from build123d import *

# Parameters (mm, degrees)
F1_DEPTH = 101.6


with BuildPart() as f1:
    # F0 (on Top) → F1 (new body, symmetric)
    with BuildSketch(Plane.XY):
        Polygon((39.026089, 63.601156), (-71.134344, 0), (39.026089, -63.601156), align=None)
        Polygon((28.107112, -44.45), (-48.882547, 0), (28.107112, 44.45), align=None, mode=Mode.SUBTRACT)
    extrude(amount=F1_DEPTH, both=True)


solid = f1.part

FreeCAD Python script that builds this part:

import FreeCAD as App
import Part
import Sketcher
from FreeCAD import Vector
Q = App.Units.Quantity


def add_polygon(sketch, points):
    """Adds a closed chain of lines whose ends are joined by coincident constraints."""
    first, n = sketch.GeometryCount, len(points)
    for a, b in zip(points, points[1:] + points[:1]):
        sketch.addGeometry(Part.LineSegment(App.Vector(*a, 0), App.Vector(*b, 0)), False)
    for i in range(n):
        sketch.addConstraint(Sketcher.Constraint("Coincident", first + i, 2, first + (i + 1) % n, 1))

doc = App.newDocument("Part")
body = doc.addObject("PartDesign::Body", "Body")

# Sketch on XY plane
sketch1 = body.newObject("Sketcher::SketchObject", "Sketch")
sketch1.AttachmentSupport = (doc.getObject("XY_Plane"), [""])
sketch1.MapMode = "FlatFace"
add_polygon(sketch1, [(39.026089, 63.601156), (-71.134344, 0), (39.026089, -63.601156)])  # lines 0-2
add_polygon(sketch1, [(28.107112, 44.45), (28.107112, -44.45), (-48.882547, 0)])  # lines 3-5
sketch1.addConstraint([
    Sketcher.Constraint("Vertical", 2),
    Sketcher.Constraint("Vertical", 3),
    Sketcher.Constraint("PointOnObject", 0, 2, -1),
    Sketcher.Constraint("PointOnObject", 4, 2, -1),
    Sketcher.Constraint("Parallel", 1, 4),
    Sketcher.Constraint("Parallel", 0, 5),
    Sketcher.Constraint("Equal", 0, 1),
    Sketcher.Constraint("DistanceY", 3, 2, 3, 1, Q("3.5 in")),
    Sketcher.Constraint("Angle", 0, Q("-150 deg")),
    Sketcher.Constraint("Distance", 0, 127.202311),
    Sketcher.Constraint("DistanceX", -1, 1, 1, 2, 39.026089),
    Sketcher.Constraint("DistanceX", -1, 1, 3, 2, 28.107112),
])
pad1 = body.newObject("PartDesign::Pad", "Pad")
pad1.Profile = sketch1
pad1.Length = Q("8 in")
pad1.Midplane = True

doc.recompute()
